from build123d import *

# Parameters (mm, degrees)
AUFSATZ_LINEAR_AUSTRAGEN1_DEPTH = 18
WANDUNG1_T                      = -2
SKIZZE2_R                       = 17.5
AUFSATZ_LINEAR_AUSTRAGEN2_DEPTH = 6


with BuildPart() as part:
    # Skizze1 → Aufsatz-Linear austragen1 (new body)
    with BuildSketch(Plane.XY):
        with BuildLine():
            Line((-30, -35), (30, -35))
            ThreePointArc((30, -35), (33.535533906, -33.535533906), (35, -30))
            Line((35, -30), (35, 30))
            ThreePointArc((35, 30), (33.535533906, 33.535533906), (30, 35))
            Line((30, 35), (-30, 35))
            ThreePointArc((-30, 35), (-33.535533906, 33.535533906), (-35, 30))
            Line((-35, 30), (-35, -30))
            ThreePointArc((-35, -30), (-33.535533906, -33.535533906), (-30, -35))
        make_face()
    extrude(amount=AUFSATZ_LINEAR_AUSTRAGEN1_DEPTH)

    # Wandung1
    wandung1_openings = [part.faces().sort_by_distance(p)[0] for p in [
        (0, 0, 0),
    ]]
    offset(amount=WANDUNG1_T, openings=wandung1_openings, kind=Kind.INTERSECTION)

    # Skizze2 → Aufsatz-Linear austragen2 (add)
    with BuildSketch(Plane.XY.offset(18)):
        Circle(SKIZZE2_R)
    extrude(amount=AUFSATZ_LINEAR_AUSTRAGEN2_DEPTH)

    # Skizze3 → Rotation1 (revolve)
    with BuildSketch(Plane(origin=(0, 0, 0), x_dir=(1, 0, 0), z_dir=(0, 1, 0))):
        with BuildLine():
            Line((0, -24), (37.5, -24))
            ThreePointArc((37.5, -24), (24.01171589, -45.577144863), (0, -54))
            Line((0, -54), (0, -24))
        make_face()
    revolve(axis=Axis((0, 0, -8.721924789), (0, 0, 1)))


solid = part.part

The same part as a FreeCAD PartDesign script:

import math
import FreeCAD as App
import Part
import Sketcher
Q = App.Units.Quantity


def faces_at(feature, points):
    """Names of the faces that lie closest to the given points."""
    faces = feature.Shape.Faces
    near = lambda p: min(range(len(faces)), key=lambda i: faces[i].distToShape(Part.Vertex(*p))[0])
    return sorted({f"Face{near(p) + 1}" for p in points})

doc = App.newDocument("Part")
params = doc.addObject("Spreadsheet::Sheet", "Params")
for row, (alias, value) in enumerate([
    ("sketch1_radius", "5 mm"),
    ("sketch1_width", "60 mm"),
    ("pad1_length", "18 mm"),
    ("thickness_wall", "2 mm"),
    ("sketch2_diameter", "35 mm"),
    ("pad2_length", "6 mm"),
    ("sketch3_height", "30 mm"),
    ("sketch3_width", "37.5 mm"),
    ("revolution_angle", "360 deg"),
], start=1):
    params.set(f"A{row}", alias)
    params.set(f"B{row}", "=" + value)
    params.setAlias(f"B{row}", alias)

body = doc.addObject("PartDesign::Body", "Body")

# Sketch on XY plane
sketch1 = body.newObject("Sketcher::SketchObject", "Sketch")
sketch1.AttachmentSupport = (doc.getObject("XY_Plane"), [""])
sketch1.MapMode = "FlatFace"
sketch1.addGeometry([
    Part.LineSegment(App.Vector(-30, -35, 0), App.Vector(30, -35, 0)),  # 0
    Part.ArcOfCircle(Part.Circle(App.Vector(30, -30, 0), App.Vector(0, 0, 1), 5), math.radians(-90), math.radians(0)),  # 1
    Part.LineSegment(App.Vector(35, -30, 0), App.Vector(35, 30, 0)),  # 2
    Part.ArcOfCircle(Part.Circle(App.Vector(30, 30, 0), App.Vector(0, 0, 1), 5), math.radians(0), math.radians(90)),  # 3
    Part.LineSegment(App.Vector(30, 35, 0), App.Vector(-30, 35, 0)),  # 4
    Part.ArcOfCircle(Part.Circle(App.Vector(-30, 30, 0), App.Vector(0, 0, 1), 5), math.radians(90), math.radians(180)),  # 5
    Part.LineSegment(App.Vector(-35, 30, 0), App.Vector(-35, -30, 0)),  # 6
    Part.ArcOfCircle(Part.Circle(App.Vector(-30, -30, 0), App.Vector(0, 0, 1), 5), math.radians(180), math.radians(270)),  # 7
], False)
sketch1.addConstraint([
    Sketcher.Constraint("Tangent", 0, 2, 1, 1),
    Sketcher.Constraint("Tangent", 1, 2, 2, 1),
    Sketcher.Constraint("Tangent", 2, 2, 3, 1),
    Sketcher.Constraint("Tangent", 3, 2, 4, 1),
    Sketcher.Constraint("Tangent", 4, 2, 5, 1),
    Sketcher.Constraint("Tangent", 5, 2, 6, 1),
    Sketcher.Constraint("Tangent", 6, 2, 7, 1),
    Sketcher.Constraint("Tangent", 7, 2, 0, 1),
    Sketcher.Constraint("Horizontal", 0),
    Sketcher.Constraint("Vertical", 2),
    Sketcher.Constraint("Horizontal", 4),
    Sketcher.Constraint("Vertical", 6),
    Sketcher.Constraint("Equal", 1, 3),
    Sketcher.Constraint("Equal", 3, 5),
    Sketcher.Constraint("Equal", 5, 7),
    Sketcher.Constraint("Symmetric", 1, 3, 5, 3, -1, 1),
    Sketcher.Constraint("Equal", 4, 2),
    Sketcher.Constraint("Radius", 1, Q("5 mm")),
    Sketcher.Constraint("DistanceX", 0, 1, 0, 2, Q("60 mm")),
])
sketch1.setExpression("Constraints[17]", "Params.sketch1_radius")
sketch1.setExpression("Constraints[18]", "Params.sketch1_width")
pad1 = body.newObject("PartDesign::Pad", "Pad")
pad1.Profile = sketch1
pad1.setExpression("Length", "Params.pad1_length")
doc.recompute()

thickness = body.newObject("PartDesign::Thickness", "Thickness")
thickness.Base = (pad1, faces_at(pad1, [(0, 0, 0)]))
thickness.setExpression("Value", "Params.thickness_wall")
thickness.Reversed = True
thickness.Join = "Intersection"

# Sketch on XY plane
sketch2 = body.newObject("Sketcher::SketchObject", "Sketch001")
sketch2.AttachmentSupport = (doc.getObject("XY_Plane"), [""])
sketch2.MapMode = "FlatFace"
sketch2.AttachmentOffset = App.Placement(App.Vector(0, 0, 18), App.Rotation())
sketch2.addGeometry(Part.Circle(App.Vector(0, 0, 0), App.Vector(0, 0, 1), 17.5), False)
sketch2.addConstraint([
    Sketcher.Constraint("Coincident", 0, 3, -1, 1),
    Sketcher.Constraint("Diameter", 0, Q("35 mm")),
])
sketch2.setExpression("Constraints[1]", "Params.sketch2_diameter")
pad2 = body.newObject("PartDesign::Pad", "Pad001")
pad2.Profile = sketch2
pad2.setExpression("Length", "Params.pad2_length")

# Sketch on XZ plane
sketch3 = body.newObject("Sketcher::SketchObject", "Sketch002")
sketch3.AttachmentSupport = (doc.getObject("XZ_Plane"), [""])
sketch3.MapMode = "FlatFace"
sketch3.addGeometry([
    Part.LineSegment(App.Vector(37.5, 24, 0), App.Vector(0, 24, 0)),
    Part.LineSegment(App.Vector(0, 24, 0), App.Vector(0, 54, 0)),
    Part.ArcOfCircle(Part.Circle(App.Vector(0, 15.5625, 0), App.Vector(0, 0, 1), 38.4375), math.radians(12.680383), math.radians(90)),
], False)
sketch3.addConstraint([
    Sketcher.Constraint("Coincident", 0, 2, 1, 1),
    Sketcher.Constraint("Coincident", 1, 2, 2, 2),
    Sketcher.Constraint("Coincident", 2, 1, 0, 1),
    Sketcher.Constraint("Horizontal", 0),
    Sketcher.Constraint("Vertical", 1),
    Sketcher.Constraint("PointOnObject", 2, 3, -2),
    Sketcher.Constraint("PointOnObject", 0, 2, -2),
    Sketcher.Constraint("DistanceY", 1, 1, 1, 2, Q("30 mm")),
    Sketcher.Constraint("DistanceX", 0, 2, 0, 1, Q("37.5 mm")),
    Sketcher.Constraint("DistanceY", -1, 1, 0, 2, Q("24 mm")),
])
sketch3.setExpression("Constraints[7]", "Params.sketch3_height")
sketch3.setExpression("Constraints[8]", "Params.sketch3_width")
revolution = body.newObject("PartDesign::Revolution", "Revolution")
revolution.Profile = sketch3
revolution.ReferenceAxis = (sketch3, ["V_Axis"])
revolution.setExpression("Angle", "Params.revolution_angle")

doc.recompute()
